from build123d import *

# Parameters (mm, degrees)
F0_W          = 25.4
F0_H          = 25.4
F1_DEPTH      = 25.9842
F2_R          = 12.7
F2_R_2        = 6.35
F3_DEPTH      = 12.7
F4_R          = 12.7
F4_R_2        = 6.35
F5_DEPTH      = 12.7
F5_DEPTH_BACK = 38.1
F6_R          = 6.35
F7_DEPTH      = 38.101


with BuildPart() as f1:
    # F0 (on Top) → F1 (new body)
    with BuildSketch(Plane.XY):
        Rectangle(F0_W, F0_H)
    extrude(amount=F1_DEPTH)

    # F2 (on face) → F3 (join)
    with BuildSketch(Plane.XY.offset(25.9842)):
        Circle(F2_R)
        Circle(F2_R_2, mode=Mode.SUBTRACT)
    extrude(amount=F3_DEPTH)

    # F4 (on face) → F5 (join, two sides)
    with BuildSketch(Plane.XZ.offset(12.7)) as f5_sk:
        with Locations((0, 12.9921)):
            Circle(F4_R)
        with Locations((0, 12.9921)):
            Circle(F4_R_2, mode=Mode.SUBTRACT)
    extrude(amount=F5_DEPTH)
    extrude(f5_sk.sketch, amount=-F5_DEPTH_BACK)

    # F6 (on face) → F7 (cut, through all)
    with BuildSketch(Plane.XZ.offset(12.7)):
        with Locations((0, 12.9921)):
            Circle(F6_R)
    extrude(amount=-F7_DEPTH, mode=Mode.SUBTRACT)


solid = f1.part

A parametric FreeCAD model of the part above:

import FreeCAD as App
import Part
import Sketcher

V = App.Vector
Q = App.Units.Quantity


def add_polygon(sketch, points):
    """Adds a closed chain of lines whose ends are joined by coincident constraints."""
    first, n = sketch.GeometryCount, len(points)
    for a, b in zip(points, points[1:] + points[:1]):
        sketch.addGeometry(Part.LineSegment(App.Vector(*a, 0), App.Vector(*b, 0)), False)
    for i in range(n):
        sketch.addConstraint(Sketcher.Constraint("Coincident", first + i, 2, first + (i + 1) % n, 1))

doc = App.newDocument("Part")
params = doc.addObject("Spreadsheet::Sheet", "Params")
for row, (alias, value) in enumerate([
    ("sketch1_width", "1 in"),
    ("pad1_length", "1.023 in"),
    ("sketch2_diameter", "1 in"),
    ("sketch2_diameter2", "0.5 in"),
    ("pad2_length", "0.5 in"),
    ("sketch3_diameter", "1 in"),
    ("sketch3_diameter2", "0.5 in"),
    ("pad3_length", "0.5 in"),
    ("pad3_length2", "1.5 in"),
    ("sketch4_diameter", "0.5 in"),
], start=1):
    params.set(f"A{row}", alias)
    params.set(f"B{row}", "=" + value)
    params.setAlias(f"B{row}", alias)

body = doc.addObject("PartDesign::Body", "Body")

# Sketch on XY plane
sketch1 = body.newObject("Sketcher::SketchObject", "Sketch")
sketch1.AttachmentSupport = (doc.getObject("XY_Plane"), [""])
sketch1.MapMode = "FlatFace"
add_polygon(sketch1, [(-13, 13), (-13, -13), (13, -13), (13, 13)])  # lines 0-3
sketch1.addConstraint([
    Sketcher.Constraint("Vertical", 0),
    Sketcher.Constraint("Horizontal", 1),
    Sketcher.Constraint("Vertical", 2),
    Sketcher.Constraint("Horizontal", 3),
    Sketcher.Constraint("Symmetric", 0, 2, 2, 2, -1, 1),
    Sketcher.Constraint("Equal", 3, 0),
    Sketcher.Constraint("DistanceX", 1, 1, 1, 2, Q("1 in")),
])
sketch1.setExpression("Constraints[10]", "Params.sketch1_width")
pad1 = body.newObject("PartDesign::Pad", "Pad")
pad1.Profile = sketch1
pad1.setExpression("Length", "Params.pad1_length")

# Sketch on XY plane
sketch2 = body.newObject("Sketcher::SketchObject", "Sketch001")
sketch2.AttachmentSupport = (doc.getObject("XY_Plane"), [""])
sketch2.MapMode = "FlatFace"
sketch2.AttachmentOffset = App.Placement(V(0, 0, 1.023 * 25.4), App.Rotation())
sketch2.addGeometry([
    Part.Circle(V(0, 0, 0), V(0, 0, 1), 13),
    Part.Circle(V(0, 0, 0), V(0, 0, 1), 6),
], False)
sketch2.addConstraint([
    Sketcher.Constraint("Coincident", 0, 3, -1, 1),
    Sketcher.Constraint("Coincident", 1, 3, -1, 1),
    Sketcher.Constraint("Diameter", 0, Q("1 in")),
    Sketcher.Constraint("Diameter", 1, Q("0.5 in")),
])
sketch2.setExpression("Constraints[2]", "Params.sketch2_diameter")
sketch2.setExpression("Constraints[3]", "Params.sketch2_diameter2")
pad2 = body.newObject("PartDesign::Pad", "Pad001")
pad2.Profile = sketch2
pad2.setExpression("Length", "Params.pad2_length")

# Sketch on XZ plane
sketch3 = body.newObject("Sketcher::SketchObject", "Sketch002")
sketch3.AttachmentSupport = (doc.getObject("XZ_Plane"), [""])
sketch3.MapMode = "FlatFace"
sketch3.AttachmentOffset = App.Placement(V(0, 0, 0.5 * 25.4), App.Rotation())
sketch3.addGeometry([
    Part.Circle(V(0, 13, 0), V(0, 0, 1), 13),
    Part.Circle(V(0, 13, 0), V(0, 0, 1), 6),
], False)
sketch3.addConstraint([
    Sketcher.Constraint("Coincident", 1, 3, 0, 3),
    Sketcher.Constraint("PointOnObject", 0, 3, -2),
    Sketcher.Constraint("Diameter", 0, Q("1 in")),
    Sketcher.Constraint("Diameter", 1, Q("0.5 in")),
    Sketcher.Constraint("DistanceY", -1, 1, 0, 3, Q("0.5115 in")),
])
sketch3.setExpression("Constraints[2]", "Params.sketch3_diameter")
sketch3.setExpression("Constraints[3]", "Params.sketch3_diameter2")
pad3 = body.newObject("PartDesign::Pad", "Pad002")
pad3.Profile = sketch3
pad3.Type = "TwoLengths"
pad3.setExpression("Length", "Params.pad3_length")
pad3.setExpression("Length2", "Params.pad3_length2")

# Sketch on XZ plane
sketch4 = body.newObject("Sketcher::SketchObject", "Sketch003")
sketch4.AttachmentSupport = (doc.getObject("XZ_Plane"), [""])
sketch4.MapMode = "FlatFace"
sketch4.AttachmentOffset = App.Placement(V(0, 0, 0.5 * 25.4), App.Rotation())
sketch4.addGeometry(Part.Circle(V(0, 13, 0), V(0, 0, 1), 6), False)
sketch4.addConstraint([
    Sketcher.Constraint("PointOnObject", 0, 3, -2),
    Sketcher.Constraint("Diameter", 0, Q("0.5 in")),
    Sketcher.Constraint("DistanceY", -1, 1, 0, 3, Q("0.5115 in")),
])
sketch4.setExpression("Constraints[1]", "Params.sketch4_diameter")
pocket1 = body.newObject("PartDesign::Pocket", "Pocket")
pocket1.Profile = sketch4
pocket1.Type = "ThroughAll"

doc.recompute()
